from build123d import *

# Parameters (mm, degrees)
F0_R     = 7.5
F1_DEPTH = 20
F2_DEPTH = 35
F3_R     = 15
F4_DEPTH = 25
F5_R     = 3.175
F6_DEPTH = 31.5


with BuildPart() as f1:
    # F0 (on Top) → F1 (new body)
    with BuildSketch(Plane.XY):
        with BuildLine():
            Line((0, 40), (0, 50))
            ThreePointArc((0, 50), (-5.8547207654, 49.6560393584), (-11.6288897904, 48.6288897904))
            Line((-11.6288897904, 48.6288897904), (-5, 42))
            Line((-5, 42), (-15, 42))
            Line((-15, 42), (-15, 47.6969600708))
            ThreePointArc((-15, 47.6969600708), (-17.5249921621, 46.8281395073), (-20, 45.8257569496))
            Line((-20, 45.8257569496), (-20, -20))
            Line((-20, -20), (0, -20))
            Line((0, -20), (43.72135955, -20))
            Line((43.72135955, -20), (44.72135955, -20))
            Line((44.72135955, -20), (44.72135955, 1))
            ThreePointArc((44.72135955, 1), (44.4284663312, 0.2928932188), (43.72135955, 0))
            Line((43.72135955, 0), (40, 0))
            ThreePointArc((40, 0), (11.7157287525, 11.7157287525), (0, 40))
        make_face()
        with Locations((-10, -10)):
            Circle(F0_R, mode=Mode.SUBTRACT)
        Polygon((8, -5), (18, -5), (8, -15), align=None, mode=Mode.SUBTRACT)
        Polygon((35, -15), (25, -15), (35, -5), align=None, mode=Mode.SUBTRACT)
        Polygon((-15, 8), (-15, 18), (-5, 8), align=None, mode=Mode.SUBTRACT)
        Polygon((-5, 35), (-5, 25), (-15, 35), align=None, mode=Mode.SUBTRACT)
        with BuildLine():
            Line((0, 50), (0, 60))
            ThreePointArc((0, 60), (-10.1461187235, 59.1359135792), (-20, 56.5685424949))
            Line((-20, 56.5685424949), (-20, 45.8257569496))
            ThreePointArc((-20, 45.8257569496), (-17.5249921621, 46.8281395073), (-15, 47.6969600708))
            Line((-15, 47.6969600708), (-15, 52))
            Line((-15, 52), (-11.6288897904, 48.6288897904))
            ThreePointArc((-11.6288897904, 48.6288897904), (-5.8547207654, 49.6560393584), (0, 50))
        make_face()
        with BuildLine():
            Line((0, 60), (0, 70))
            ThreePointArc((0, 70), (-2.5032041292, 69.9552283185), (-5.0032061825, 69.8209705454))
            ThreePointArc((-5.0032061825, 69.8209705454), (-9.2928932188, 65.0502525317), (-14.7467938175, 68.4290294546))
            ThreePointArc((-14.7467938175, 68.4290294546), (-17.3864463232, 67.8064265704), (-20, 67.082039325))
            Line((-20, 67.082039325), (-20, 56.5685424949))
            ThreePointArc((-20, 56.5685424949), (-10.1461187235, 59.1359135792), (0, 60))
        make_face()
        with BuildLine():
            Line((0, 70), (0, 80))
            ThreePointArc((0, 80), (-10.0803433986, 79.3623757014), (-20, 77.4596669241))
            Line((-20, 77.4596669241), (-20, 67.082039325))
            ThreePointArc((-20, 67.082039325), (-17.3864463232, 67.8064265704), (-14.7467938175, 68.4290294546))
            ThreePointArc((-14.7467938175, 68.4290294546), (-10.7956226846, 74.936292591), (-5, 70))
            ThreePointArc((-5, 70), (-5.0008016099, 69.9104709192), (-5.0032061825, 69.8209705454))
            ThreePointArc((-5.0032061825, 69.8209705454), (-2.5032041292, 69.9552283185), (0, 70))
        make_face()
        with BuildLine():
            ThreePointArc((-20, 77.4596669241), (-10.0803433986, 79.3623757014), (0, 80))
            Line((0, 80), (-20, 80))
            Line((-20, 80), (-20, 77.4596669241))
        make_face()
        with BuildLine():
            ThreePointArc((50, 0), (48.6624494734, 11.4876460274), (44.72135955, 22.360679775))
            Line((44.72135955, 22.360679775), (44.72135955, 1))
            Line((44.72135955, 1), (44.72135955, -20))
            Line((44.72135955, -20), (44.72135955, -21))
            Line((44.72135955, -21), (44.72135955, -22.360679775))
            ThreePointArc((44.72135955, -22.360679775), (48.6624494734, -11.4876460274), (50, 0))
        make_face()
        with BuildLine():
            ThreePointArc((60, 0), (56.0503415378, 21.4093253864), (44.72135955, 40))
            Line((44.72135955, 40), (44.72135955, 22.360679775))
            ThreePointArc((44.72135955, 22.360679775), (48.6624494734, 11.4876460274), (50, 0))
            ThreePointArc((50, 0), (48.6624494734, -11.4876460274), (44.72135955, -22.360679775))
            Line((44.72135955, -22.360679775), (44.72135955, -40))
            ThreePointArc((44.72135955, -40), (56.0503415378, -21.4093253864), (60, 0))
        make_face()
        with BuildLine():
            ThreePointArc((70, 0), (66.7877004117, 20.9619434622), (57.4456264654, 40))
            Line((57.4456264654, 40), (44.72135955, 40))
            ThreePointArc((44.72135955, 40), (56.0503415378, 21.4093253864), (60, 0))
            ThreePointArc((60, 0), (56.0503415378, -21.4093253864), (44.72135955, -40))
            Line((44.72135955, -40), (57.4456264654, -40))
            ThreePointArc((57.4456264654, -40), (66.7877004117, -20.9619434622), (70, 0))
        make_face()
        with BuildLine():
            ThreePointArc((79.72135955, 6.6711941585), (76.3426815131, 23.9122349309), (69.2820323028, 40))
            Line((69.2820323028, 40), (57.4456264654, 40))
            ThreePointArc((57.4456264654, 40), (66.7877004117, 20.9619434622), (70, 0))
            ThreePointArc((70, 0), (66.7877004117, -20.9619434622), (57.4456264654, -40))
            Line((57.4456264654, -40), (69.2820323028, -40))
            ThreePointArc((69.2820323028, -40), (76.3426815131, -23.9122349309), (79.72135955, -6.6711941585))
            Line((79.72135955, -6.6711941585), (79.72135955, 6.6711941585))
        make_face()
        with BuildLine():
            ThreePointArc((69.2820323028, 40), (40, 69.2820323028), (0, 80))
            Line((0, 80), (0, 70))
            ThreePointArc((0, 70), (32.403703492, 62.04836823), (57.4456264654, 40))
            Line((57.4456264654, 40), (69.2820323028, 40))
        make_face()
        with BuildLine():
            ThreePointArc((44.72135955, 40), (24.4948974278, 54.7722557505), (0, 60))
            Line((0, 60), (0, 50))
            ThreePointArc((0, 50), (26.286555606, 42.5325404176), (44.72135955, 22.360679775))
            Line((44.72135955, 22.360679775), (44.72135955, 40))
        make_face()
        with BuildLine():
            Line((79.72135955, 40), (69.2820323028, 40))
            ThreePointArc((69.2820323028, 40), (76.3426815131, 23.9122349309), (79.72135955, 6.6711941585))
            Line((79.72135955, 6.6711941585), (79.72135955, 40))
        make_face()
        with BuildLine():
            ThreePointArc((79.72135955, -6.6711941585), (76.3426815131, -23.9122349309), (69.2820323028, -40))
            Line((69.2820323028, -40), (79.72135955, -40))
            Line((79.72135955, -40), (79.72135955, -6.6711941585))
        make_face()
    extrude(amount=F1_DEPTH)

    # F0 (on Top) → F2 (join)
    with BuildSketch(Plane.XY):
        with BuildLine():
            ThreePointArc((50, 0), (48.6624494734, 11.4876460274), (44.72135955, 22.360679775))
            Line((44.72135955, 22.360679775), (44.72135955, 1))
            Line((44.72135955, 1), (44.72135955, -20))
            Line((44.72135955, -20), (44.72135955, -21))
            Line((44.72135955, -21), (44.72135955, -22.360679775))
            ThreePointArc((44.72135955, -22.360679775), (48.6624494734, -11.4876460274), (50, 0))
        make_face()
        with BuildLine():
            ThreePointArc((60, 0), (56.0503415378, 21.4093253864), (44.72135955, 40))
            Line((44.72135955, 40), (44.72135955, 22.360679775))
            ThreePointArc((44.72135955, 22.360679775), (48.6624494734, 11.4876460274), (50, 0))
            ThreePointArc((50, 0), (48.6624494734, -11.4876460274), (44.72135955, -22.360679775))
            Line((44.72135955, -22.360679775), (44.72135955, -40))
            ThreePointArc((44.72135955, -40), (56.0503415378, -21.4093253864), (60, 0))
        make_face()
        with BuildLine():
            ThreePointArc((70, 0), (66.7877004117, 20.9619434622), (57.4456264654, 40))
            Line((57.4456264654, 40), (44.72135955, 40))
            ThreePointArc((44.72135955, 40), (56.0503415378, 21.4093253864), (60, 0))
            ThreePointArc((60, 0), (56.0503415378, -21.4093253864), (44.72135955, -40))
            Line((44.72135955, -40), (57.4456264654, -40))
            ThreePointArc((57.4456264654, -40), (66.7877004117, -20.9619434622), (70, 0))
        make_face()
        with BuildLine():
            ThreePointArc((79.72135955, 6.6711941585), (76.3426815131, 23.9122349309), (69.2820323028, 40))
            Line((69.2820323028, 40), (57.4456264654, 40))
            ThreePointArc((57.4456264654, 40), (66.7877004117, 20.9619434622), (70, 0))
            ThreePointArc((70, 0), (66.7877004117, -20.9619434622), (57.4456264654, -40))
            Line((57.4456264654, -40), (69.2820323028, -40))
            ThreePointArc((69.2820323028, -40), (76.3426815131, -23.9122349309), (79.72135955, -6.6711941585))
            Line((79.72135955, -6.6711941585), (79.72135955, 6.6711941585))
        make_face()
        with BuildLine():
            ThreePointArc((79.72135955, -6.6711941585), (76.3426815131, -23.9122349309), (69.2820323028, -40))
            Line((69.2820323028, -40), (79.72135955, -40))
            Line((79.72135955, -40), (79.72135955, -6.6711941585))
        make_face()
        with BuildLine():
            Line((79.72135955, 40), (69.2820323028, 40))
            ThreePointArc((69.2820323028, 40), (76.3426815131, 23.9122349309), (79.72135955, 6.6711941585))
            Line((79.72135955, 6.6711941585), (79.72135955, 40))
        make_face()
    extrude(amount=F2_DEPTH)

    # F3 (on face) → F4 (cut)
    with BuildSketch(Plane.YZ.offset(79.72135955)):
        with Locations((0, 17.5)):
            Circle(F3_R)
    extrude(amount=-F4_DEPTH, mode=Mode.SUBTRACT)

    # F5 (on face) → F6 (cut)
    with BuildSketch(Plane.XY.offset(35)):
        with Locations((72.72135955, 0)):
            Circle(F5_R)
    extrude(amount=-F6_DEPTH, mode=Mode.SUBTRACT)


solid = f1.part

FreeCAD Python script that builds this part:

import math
import FreeCAD as App
import Part
import Sketcher
from FreeCAD import Vector
Q = App.Units.Quantity

doc = App.newDocument("Part")
params = doc.addObject("Spreadsheet::Sheet", "Params")
for row, (alias, value) in enumerate([
    ("sketch1_diameter", "15 mm"),
    ("sketch1_radius", "80 mm"),
    ("sketch1_radius2", "50 mm"),
    ("sketch1_radius3", "1 mm"),
    ("sketch1_radius4", "40 mm"),
    ("pad1_length", "20 mm"),
    ("sketch2_width", "35 mm"),
    ("sketch2_height", "80 mm"),
    ("pad2_length", "35 mm"),
    ("sketch3_diameter", "30 mm"),
    ("pocket1_length", "25 mm"),
    ("sketch4_diameter", "6.35 mm"),
    ("pocket2_length", "31.5 mm"),
], start=1):
    params.set(f"A{row}", alias)
    params.set(f"B{row}", "=" + value)
    params.setAlias(f"B{row}", alias)

body = doc.addObject("PartDesign::Body", "Body")

# Sketch on XY plane
sketch1 = body.newObject("Sketcher::SketchObject", "Sketch")
sketch1.AttachmentSupport = (doc.getObject("XY_Plane"), [""])
sketch1.MapMode = "FlatFace"
sketch1.addGeometry(Part.LineSegment(Vector(0, 80, 0), Vector(-20, 80, 0)), False)
sketch1.addGeometry(Part.LineSegment(Vector(-20, 80, 0), Vector(-20, -20, 0)), False)
sketch1.addGeometry(Part.LineSegment(Vector(-20, -20, 0), Vector(44.72, -20, 0)), False)
sketch1.addGeometry(Part.LineSegment(Vector(44.72, -20, 0), Vector(44.72, -40, 0)), False)
sketch1.addGeometry(Part.LineSegment(Vector(44.72, -40, 0), Vector(79.72, -40, 0)), False)
sketch1.addGeometry(Part.LineSegment(Vector(79.72, -40, 0), Vector(79.72, 40, 0)), False)
sketch1.addGeometry(Part.LineSegment(Vector(79.72, 40, 0), Vector(69.28, 40, 0)), False)
sketch1.addGeometry(Part.ArcOfCircle(Part.Circle(Vector(0, 0, 0), Vector(0, 0, 1), 80), math.radians(30), math.radians(90)), False)
sketch1.addGeometry(Part.LineSegment(Vector(0, 40, 0), Vector(0, 50, 0)), False)
sketch1.addGeometry(Part.ArcOfCircle(Part.Circle(Vector(0, 0, 0), Vector(0, 0, 1), 50), math.radians(27), math.radians(90)), False)
sketch1.addGeometry(Part.LineSegment(Vector(44.72, 22.36, 0), Vector(44.72, 1, 0)), False)
sketch1.addGeometry(Part.ArcOfCircle(Part.Circle(Vector(43.72, 1, 0), Vector(0, 0, 1), 1), math.radians(-90), math.radians(0)), False)
sketch1.addGeometry(Part.LineSegment(Vector(43.72, 0, 0), Vector(40, 0, 0)), False)
sketch1.addGeometry(Part.ArcOfCircle(Part.Circle(Vector(40, 40, 0), Vector(0, 0, 1), 40), math.radians(180), math.radians(270)), False)
sketch1.addGeometry(Part.LineSegment(Vector(0, 60, 0), Vector(0, 70, 0)), False)
sketch1.addGeometry(Part.ArcOfCircle(Part.Circle(Vector(0, 0, 0), Vector(0, 0, 1), 70), math.radians(35), math.radians(90)), False)
sketch1.addGeometry(Part.LineSegment(Vector(57.45, 40, 0), Vector(44.72, 40, 0)), False)
sketch1.addGeometry(Part.ArcOfCircle(Part.Circle(Vector(0, 0, 0), Vector(0, 0, 1), 60), math.radians(42), math.radians(90)), False)
sketch1.addGeometry(Part.ArcOfCircle(Part.Circle(Vector(-10, 70, 0), Vector(0, 0, 1), 5), math.radians(-162), math.radians(-2)), False)
sketch1.addGeometry(Part.ArcOfCircle(Part.Circle(Vector(-10, 70, 0), Vector(0, 0, 1), 5), math.radians(0), math.radians(198)), False)
sketch1.addGeometry(Part.ArcOfCircle(Part.Circle(Vector(-10, 70, 0), Vector(0, 0, 1), 5), math.radians(-2.05), math.radians(0)), False)
sketch1.addGeometry(Part.LineSegment(Vector(-5, 42, 0), Vector(-15, 42, 0)), False)
sketch1.addGeometry(Part.LineSegment(Vector(-15, 42, 0), Vector(-15, 52, 0)), False)
sketch1.addGeometry(Part.LineSegment(Vector(-15, 52, 0), Vector(-5, 42, 0)), False)
sketch1.addGeometry(Part.Circle(Vector(-10, -10, 0), Vector(0, 0, 1), 7.5), False)
sketch1.addGeometry(Part.LineSegment(Vector(8, -15, 0), Vector(8, -5, 0)), False)
sketch1.addGeometry(Part.LineSegment(Vector(8, -5, 0), Vector(18, -5, 0)), False)
sketch1.addGeometry(Part.LineSegment(Vector(18, -5, 0), Vector(8, -15, 0)), False)
sketch1.addGeometry(Part.LineSegment(Vector(35, -5, 0), Vector(35, -15, 0)), False)
sketch1.addGeometry(Part.LineSegment(Vector(35, -15, 0), Vector(25, -15, 0)), False)
sketch1.addGeometry(Part.LineSegment(Vector(25, -15, 0), Vector(35, -5, 0)), False)
sketch1.addGeometry(Part.LineSegment(Vector(-5, 8, 0), Vector(-15, 8, 0)), False)
sketch1.addGeometry(Part.LineSegment(Vector(-15, 8, 0), Vector(-15, 18, 0)), False)
sketch1.addGeometry(Part.LineSegment(Vector(-15, 18, 0), Vector(-5, 8, 0)), False)
sketch1.addGeometry(Part.LineSegment(Vector(-15, 35, 0), Vector(-5, 35, 0)), False)
sketch1.addGeometry(Part.LineSegment(Vector(-5, 35, 0), Vector(-5, 25, 0)), False)
sketch1.addGeometry(Part.LineSegment(Vector(-5, 25, 0), Vector(-15, 35, 0)), False)
sketch1.addConstraint(Sketcher.Constraint("Coincident", 0, 2, 1, 1))
sketch1.addConstraint(Sketcher.Constraint("Coincident", 1, 2, 2, 1))
sketch1.addConstraint(Sketcher.Constraint("Coincident", 2, 2, 3, 1))
sketch1.addConstraint(Sketcher.Constraint("Coincident", 3, 2, 4, 1))
sketch1.addConstraint(Sketcher.Constraint("Coincident", 4, 2, 5, 1))
sketch1.addConstraint(Sketcher.Constraint("Coincident", 5, 2, 6, 1))
sketch1.addConstraint(Sketcher.Constraint("Coincident", 6, 2, 7, 1))
sketch1.addConstraint(Sketcher.Constraint("Tangent", 7, 2, 0, 1))
sketch1.addConstraint(Sketcher.Constraint("Coincident", 8, 2, 9, 2))
sketch1.addConstraint(Sketcher.Constraint("Coincident", 9, 1, 10, 1))
sketch1.addConstraint(Sketcher.Constraint("Tangent", 10, 2, 11, 2))
sketch1.addConstraint(Sketcher.Constraint("Tangent", 11, 1, 12, 1))
sketch1.addConstraint(Sketcher.Constraint("Tangent", 12, 2, 13, 2))
sketch1.addConstraint(Sketcher.Constraint("Tangent", 13, 1, 8, 1))
sketch1.addConstraint(Sketcher.Constraint("Coincident", 14, 2, 15, 2))
sketch1.addConstraint(Sketcher.Constraint("Coincident", 15, 1, 16, 1))
sketch1.addConstraint(Sketcher.Constraint("Coincident", 16, 2, 17, 1))
sketch1.addConstraint(Sketcher.Constraint("Coincident", 17, 2, 14, 1))
sketch1.addConstraint(Sketcher.Constraint("Tangent", 18, 1, 19, 2))
sketch1.addConstraint(Sketcher.Constraint("Tangent", 19, 1, 20, 2))
sketch1.addConstraint(Sketcher.Constraint("Tangent", 20, 1, 18, 2))
sketch1.addConstraint(Sketcher.Constraint("Coincident", 21, 2, 22, 1))
sketch1.addConstraint(Sketcher.Constraint("Coincident", 22, 2, 23, 1))
sketch1.addConstraint(Sketcher.Constraint("Coincident", 23, 2, 21, 1))
sketch1.addConstraint(Sketcher.Constraint("Coincident", 25, 2, 26, 1))
sketch1.addConstraint(Sketcher.Constraint("Coincident", 26, 2, 27, 1))
sketch1.addConstraint(Sketcher.Constraint("Coincident", 27, 2, 25, 1))
sketch1.addConstraint(Sketcher.Constraint("Coincident", 28, 2, 29, 1))
sketch1.addConstraint(Sketcher.Constraint("Coincident", 29, 2, 30, 1))
sketch1.addConstraint(Sketcher.Constraint("Coincident", 30, 2, 28, 1))
sketch1.addConstraint(Sketcher.Constraint("Coincident", 31, 2, 32, 1))
sketch1.addConstraint(Sketcher.Constraint("Coincident", 32, 2, 33, 1))
sketch1.addConstraint(Sketcher.Constraint("Coincident", 33, 2, 31, 1))
sketch1.addConstraint(Sketcher.Constraint("Coincident", 34, 2, 35, 1))
sketch1.addConstraint(Sketcher.Constraint("Coincident", 35, 2, 36, 1))
sketch1.addConstraint(Sketcher.Constraint("Coincident", 36, 2, 34, 1))
sketch1.addConstraint(Sketcher.Constraint("Horizontal", 0))
sketch1.addConstraint(Sketcher.Constraint("Vertical", 1))
sketch1.addConstraint(Sketcher.Constraint("Horizontal", 2))
sketch1.addConstraint(Sketcher.Constraint("Vertical", 3))
sketch1.addConstraint(Sketcher.Constraint("Horizontal", 4))
sketch1.addConstraint(Sketcher.Constraint("Vertical", 5))
sketch1.addConstraint(Sketcher.Constraint("Horizontal", 6))
sketch1.addConstraint(Sketcher.Constraint("Vertical", 8))
sketch1.addConstraint(Sketcher.Constraint("Vertical", 10))
sketch1.addConstraint(Sketcher.Constraint("Horizontal", 12))
sketch1.addConstraint(Sketcher.Constraint("Vertical", 14))
sketch1.addConstraint(Sketcher.Constraint("Horizontal", 16))
sketch1.addConstraint(Sketcher.Constraint("Horizontal", 21))
sketch1.addConstraint(Sketcher.Constraint("Vertical", 22))
sketch1.addConstraint(Sketcher.Constraint("Vertical", 25))
sketch1.addConstraint(Sketcher.Constraint("Horizontal", 26))
sketch1.addConstraint(Sketcher.Constraint("Vertical", 28))
sketch1.addConstraint(Sketcher.Constraint("Horizontal", 29))
sketch1.addConstraint(Sketcher.Constraint("Horizontal", 31))
sketch1.addConstraint(Sketcher.Constraint("Vertical", 32))
sketch1.addConstraint(Sketcher.Constraint("Horizontal", 34))
sketch1.addConstraint(Sketcher.Constraint("Vertical", 35))
sketch1.addConstraint(Sketcher.Constraint("Coincident", 7, 3, -1, 1))
sketch1.addConstraint(Sketcher.Constraint("Coincident", 9, 3, -1, 1))
sketch1.addConstraint(Sketcher.Constraint("Coincident", 15, 3, -1, 1))
sketch1.addConstraint(Sketcher.Constraint("Coincident", 17, 3, -1, 1))
sketch1.addConstraint(Sketcher.Constraint("Symmetric", 3, 2, 16, 2, -1))
sketch1.addConstraint(Sketcher.Constraint("PointOnObject", 8, 2, -2))
sketch1.addConstraint(Sketcher.Constraint("PointOnObject", 11, 1, -1))
sketch1.addConstraint(Sketcher.Constraint("PointOnObject", 14, 2, -2))
sketch1.addConstraint(Sketcher.Constraint("Perpendicular", 23, 27))
sketch1.addConstraint(Sketcher.Constraint("Parallel", 27, 30))
sketch1.addConstraint(Sketcher.Constraint("Perpendicular", 30, 33))
sketch1.addConstraint(Sketcher.Constraint("Parallel", 33, 36))
sketch1.addConstraint(Sketcher.Constraint("Horizontal", 13, 3, 5, 2))
sketch1.addConstraint(Sketcher.Constraint("Horizontal", 20, 3, 14, 2))
sketch1.addConstraint(Sketcher.Constraint("Horizontal", 13, 1, 15, 1))
sketch1.addConstraint(Sketcher.Constraint("Horizontal", 14, 2, 19, 1))
sketch1.addConstraint(Sketcher.Constraint("Horizontal", 27, 2, 28, 2))
sketch1.addConstraint(Sketcher.Constraint("Horizontal", 26, 2, 30, 2))
sketch1.addConstraint(Sketcher.Constraint("Vertical", 20, 3, 24, 3))
sketch1.addConstraint(Sketcher.Constraint("Vertical", 3, 2, 9, 1))
sketch1.addConstraint(Sketcher.Constraint("Vertical", 19, 1, 23, 2))
sketch1.addConstraint(Sketcher.Constraint("Vertical", 22, 2, 31, 2))
sketch1.addConstraint(Sketcher.Constraint("Vertical", 23, 2, 33, 2))
sketch1.addConstraint(Sketcher.Constraint("Vertical", 33, 2, 34, 2))
sketch1.addConstraint(Sketcher.Constraint("Vertical", 32, 2, 36, 2))
sketch1.addConstraint(Sketcher.Constraint("Equal", 21, 26))
sketch1.addConstraint(Sketcher.Constraint("Equal", 0, 3))
sketch1.addConstraint(Sketcher.Constraint("Equal", 34, 8))
sketch1.addConstraint(Sketcher.Constraint("Equal", 8, 14))
sketch1.addConstraint(Sketcher.Constraint("Equal", 14, 22))
sketch1.addConstraint(Sketcher.Constraint("Diameter", 24, Q("15 mm")))
sketch1.addConstraint(Sketcher.Constraint("Radius", 7, Q("80 mm")))
sketch1.addConstraint(Sketcher.Constraint("Radius", 9, Q("50 mm")))
sketch1.addConstraint(Sketcher.Constraint("Radius", 11, Q("1 mm")))
sketch1.addConstraint(Sketcher.Constraint("Radius", 13, Q("40 mm")))
sketch1.addConstraint(Sketcher.Constraint("Radius", 15, Q("70 mm")))
sketch1.addConstraint(Sketcher.Constraint("Radius", 18, Q("5 mm")))
sketch1.addConstraint(Sketcher.Constraint("DistanceX", 0, 2, 0, 1, Q("20 mm")))
sketch1.addConstraint(Sketcher.Constraint("DistanceX", 4, 1, 4, 2, Q("35 mm")))
sketch1.addConstraint(Sketcher.Constraint("DistanceX", 18, 3, -1, 1, Q("10 mm")))
sketch1.addConstraint(Sketcher.Constraint("DistanceY", 24, 3, -1, 1, Q("10 mm")))
sketch1.addConstraint(Sketcher.Constraint("DistanceY", -1, 1, 21, 2, Q("42 mm")))
sketch1.addConstraint(Sketcher.Constraint("DistanceX", -1, 1, 25, 2, Q("8 mm")))
sketch1.addConstraint(Sketcher.Constraint("DistanceY", 25, 2, -1, 1, Q("5 mm")))
sketch1.addConstraint(Sketcher.Constraint("DistanceX", -1, 1, 28, 2, Q("35 mm")))
sketch1.addConstraint(Sketcher.Constraint("DistanceY", -1, 1, 31, 2, Q("8 mm")))
sketch1.addConstraint(Sketcher.Constraint("DistanceY", -1, 1, 34, 2, Q("35 mm")))
sketch1.addConstraint(Sketcher.Constraint("DistanceY", -1, 1, 18, 1, Q("68.429029 mm")))
sketch1.addConstraint(Sketcher.Constraint("DistanceY", -1, 1, 20, 1, Q("69.820971 mm")))
sketch1.setExpression("Constraints[88]", "Params.sketch1_diameter")
sketch1.setExpression("Constraints[89]", "Params.sketch1_radius")
sketch1.setExpression("Constraints[90]", "Params.sketch1_radius2")
sketch1.setExpression("Constraints[91]", "Params.sketch1_radius3")
sketch1.setExpression("Constraints[92]", "Params.sketch1_radius4")
pad1 = body.newObject("PartDesign::Pad", "Pad")
pad1.Profile = sketch1
pad1.setExpression("Length", "Params.pad1_length")

# Sketch on XY plane
sketch2 = body.newObject("Sketcher::SketchObject", "Sketch001")
sketch2.AttachmentSupport = (doc.getObject("XY_Plane"), [""])
sketch2.MapMode = "FlatFace"
sketch2.addGeometry(Part.LineSegment(Vector(45, 40, 0), Vector(45, -40, 0)), False)
sketch2.addGeometry(Part.LineSegment(Vector(45, -40, 0), Vector(80, -40, 0)), False)
sketch2.addGeometry(Part.LineSegment(Vector(80, -40, 0), Vector(80, 40, 0)), False)
sketch2.addGeometry(Part.LineSegment(Vector(80, 40, 0), Vector(45, 40, 0)), False)
sketch2.addConstraint(Sketcher.Constraint("Coincident", 0, 2, 1, 1))
sketch2.addConstraint(Sketcher.Constraint("Coincident", 1, 2, 2, 1))
sketch2.addConstraint(Sketcher.Constraint("Coincident", 2, 2, 3, 1))
sketch2.addConstraint(Sketcher.Constraint("Coincident", 3, 2, 0, 1))
sketch2.addConstraint(Sketcher.Constraint("Vertical", 0))
sketch2.addConstraint(Sketcher.Constraint("Horizontal", 1))
sketch2.addConstraint(Sketcher.Constraint("Vertical", 2))
sketch2.addConstraint(Sketcher.Constraint("Horizontal", 3))
sketch2.addConstraint(Sketcher.Constraint("DistanceX", 1, 1, 1, 2, Q("35 mm")))
sketch2.addConstraint(Sketcher.Constraint("DistanceY", 0, 2, 0, 1, Q("80 mm")))
sketch2.addConstraint(Sketcher.Constraint("DistanceY", 0, 2, -1, 1, Q("40 mm")))
sketch2.addConstraint(Sketcher.Constraint("DistanceX", -1, 1, 0, 2, Q("44.72136 mm")))
sketch2.setExpression("Constraints[8]", "Params.sketch2_width")
sketch2.setExpression("Constraints[9]", "Params.sketch2_height")
pad2 = body.newObject("PartDesign::Pad", "Pad001")
pad2.Profile = sketch2
pad2.setExpression("Length", "Params.pad2_length")

# Sketch on YZ plane
sketch3 = body.newObject("Sketcher::SketchObject", "Sketch002")
sketch3.AttachmentSupport = (doc.getObject("YZ_Plane"), [""])
sketch3.MapMode = "FlatFace"
sketch3.AttachmentOffset = App.Placement(Vector(0, 0, 79.72136), App.Rotation())
sketch3.addGeometry(Part.Circle(Vector(0, 18, 0), Vector(0, 0, 1), 15), False)
sketch3.addConstraint(Sketcher.Constraint("PointOnObject", 0, 3, -2))
sketch3.addConstraint(Sketcher.Constraint("Diameter", 0, Q("30 mm")))
sketch3.addConstraint(Sketcher.Constraint("DistanceY", -1, 1, 0, 3, Q("17.5 mm")))
sketch3.setExpression("Constraints[1]", "Params.sketch3_diameter")
pocket1 = body.newObject("PartDesign::Pocket", "Pocket")
pocket1.Profile = sketch3
pocket1.setExpression("Length", "Params.pocket1_length")

# Sketch on XY plane
sketch4 = body.newObject("Sketcher::SketchObject", "Sketch003")
sketch4.AttachmentSupport = (doc.getObject("XY_Plane"), [""])
sketch4.MapMode = "FlatFace"
sketch4.AttachmentOffset = App.Placement(Vector(0, 0, 35), App.Rotation())
sketch4.addGeometry(Part.Circle(Vector(72.7, 0, 0), Vector(0, 0, 1), 3.2), False)
sketch4.addConstraint(Sketcher.Constraint("PointOnObject", 0, 3, -1))
sketch4.addConstraint(Sketcher.Constraint("Diameter", 0, Q("6.35 mm")))
sketch4.addConstraint(Sketcher.Constraint("DistanceX", -1, 1, 0, 3, Q("72.72136 mm")))
sketch4.setExpression("Constraints[1]", "Params.sketch4_diameter")
pocket2 = body.newObject("PartDesign::Pocket", "Pocket001")
pocket2.Profile = sketch4
pocket2.setExpression("Length", "Params.pocket2_length")

doc.recompute()
